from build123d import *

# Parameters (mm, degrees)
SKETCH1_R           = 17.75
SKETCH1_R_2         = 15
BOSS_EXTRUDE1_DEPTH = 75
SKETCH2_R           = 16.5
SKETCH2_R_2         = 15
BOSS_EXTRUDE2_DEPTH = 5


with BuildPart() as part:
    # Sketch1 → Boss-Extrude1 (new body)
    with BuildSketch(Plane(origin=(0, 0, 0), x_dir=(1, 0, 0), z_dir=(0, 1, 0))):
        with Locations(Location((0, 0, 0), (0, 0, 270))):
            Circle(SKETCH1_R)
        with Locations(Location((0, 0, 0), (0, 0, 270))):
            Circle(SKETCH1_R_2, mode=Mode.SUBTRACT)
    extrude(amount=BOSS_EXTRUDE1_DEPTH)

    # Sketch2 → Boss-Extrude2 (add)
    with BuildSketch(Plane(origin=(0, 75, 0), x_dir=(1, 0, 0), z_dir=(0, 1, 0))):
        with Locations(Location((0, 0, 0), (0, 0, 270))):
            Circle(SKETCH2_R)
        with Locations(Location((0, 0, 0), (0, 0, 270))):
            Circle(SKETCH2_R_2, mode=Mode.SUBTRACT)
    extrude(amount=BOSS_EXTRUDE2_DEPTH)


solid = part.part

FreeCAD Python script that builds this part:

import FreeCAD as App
import Part
import Sketcher

doc = App.newDocument("Part")
body = doc.addObject("PartDesign::Body", "Body")

sketch1 = doc.addObject("Sketcher::SketchObject", "Sketch")
body.addObject(sketch1)
sketch1.AttachmentSupport = (doc.XZ_Plane, [""])
sketch1.MapMode = "FlatFace"
sketch1.addGeometry([
    Part.Circle(App.Vector(0, 0, 0), App.Vector(0, 0, 1), 18),
    Part.Circle(App.Vector(0, 0, 0), App.Vector(0, 0, 1), 15),
], False)
sketch1.addConstraint([
    Sketcher.Constraint("Coincident", 0, 3, -1, 1),
    Sketcher.Constraint("Coincident", 1, 3, -1, 1),
    Sketcher.Constraint("Diameter", 1, 30.0),
    Sketcher.Constraint("Diameter", 0, 35.5),
])
pad1 = doc.addObject("PartDesign::Pad", "Pad")
body.addObject(pad1)
pad1.Profile = sketch1
pad1.Length = 75
pad1.Reversed = True

sketch2 = doc.addObject("Sketcher::SketchObject", "Sketch001")
body.addObject(sketch2)
sketch2.AttachmentSupport = (doc.XZ_Plane, [""])
sketch2.MapMode = "FlatFace"
sketch2.AttachmentOffset = App.Placement(App.Vector(0, 0, -75), App.Rotation())
sketch2.addGeometry([
    Part.Circle(App.Vector(0, 0, 0), App.Vector(0, 0, 1), 16),
    Part.Circle(App.Vector(0, 0, 0), App.Vector(0, 0, 1), 15),
], False)
sketch2.addConstraint([
    Sketcher.Constraint("Coincident", 0, 3, -1, 1),
    Sketcher.Constraint("Coincident", 1, 3, -1, 1),
    Sketcher.Constraint("Diameter", 0, 33.0),
    Sketcher.Constraint("Diameter", 1, 30.0),
])
pad2 = doc.addObject("PartDesign::Pad", "Pad001")
body.addObject(pad2)
pad2.Profile = sketch2
pad2.Length = 5
pad2.Reversed = True

doc.recompute()
